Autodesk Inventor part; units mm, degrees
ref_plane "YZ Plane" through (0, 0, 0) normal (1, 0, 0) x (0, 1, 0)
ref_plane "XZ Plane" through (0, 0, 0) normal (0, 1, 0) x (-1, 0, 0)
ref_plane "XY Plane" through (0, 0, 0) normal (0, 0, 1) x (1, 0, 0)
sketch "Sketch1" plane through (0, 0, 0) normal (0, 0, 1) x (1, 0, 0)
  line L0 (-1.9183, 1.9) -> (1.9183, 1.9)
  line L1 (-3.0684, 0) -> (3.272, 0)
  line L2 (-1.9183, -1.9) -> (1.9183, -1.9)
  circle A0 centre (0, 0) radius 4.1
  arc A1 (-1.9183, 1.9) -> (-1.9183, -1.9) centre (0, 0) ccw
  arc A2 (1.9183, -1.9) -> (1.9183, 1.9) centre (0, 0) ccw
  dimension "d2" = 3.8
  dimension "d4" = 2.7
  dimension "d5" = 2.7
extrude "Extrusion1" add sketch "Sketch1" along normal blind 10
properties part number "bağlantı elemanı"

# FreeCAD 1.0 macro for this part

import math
import FreeCAD as App
import Part
import Sketcher
from FreeCAD import Vector
Q = App.Units.Quantity

doc = App.newDocument("Part")
params = doc.addObject("Spreadsheet::Sheet", "Params")
for row, (alias, value) in enumerate([
    ("sketch1_radius", "2.7 mm"),
    ("sketch1_diameter", "8.2 mm"),
    ("pad1_length", "10 mm"),
], start=1):
    params.set(f"A{row}", alias)
    params.set(f"B{row}", "=" + value)
    params.setAlias(f"B{row}", alias)

body = doc.addObject("PartDesign::Body", "Body")

sketch1 = body.newObject("Sketcher::SketchObject", "Sketch")
sketch1.AttachmentSupport = (doc.getObject("XY_Plane"), [""])
sketch1.MapMode = "FlatFace"
sketch1.addGeometry(Part.Circle(Vector(0, 0, 0), Vector(0, 0, 1), 4.1), False)
sketch1.addGeometry(Part.ArcOfCircle(Part.Circle(Vector(0, 0, 0), Vector(0, 0, 1), 2.7), math.radians(135), math.radians(225)), False)
sketch1.addGeometry(Part.LineSegment(Vector(-1.9, 1.9, 0), Vector(1.9, 1.9, 0)), False)
sketch1.addGeometry(Part.ArcOfCircle(Part.Circle(Vector(0, 0, 0), Vector(0, 0, 1), 2.7), math.radians(-45), math.radians(45)), False)
sketch1.addGeometry(Part.LineSegment(Vector(1.9, -1.9, 0), Vector(-1.9, -1.9, 0)), False)
sketch1.addConstraint(Sketcher.Constraint("Coincident", 1, 1, 2, 1))
sketch1.addConstraint(Sketcher.Constraint("Coincident", 2, 2, 3, 2))
sketch1.addConstraint(Sketcher.Constraint("Coincident", 3, 1, 4, 1))
sketch1.addConstraint(Sketcher.Constraint("Coincident", 4, 2, 1, 2))
sketch1.addConstraint(Sketcher.Constraint("Horizontal", 2))
sketch1.addConstraint(Sketcher.Constraint("Horizontal", 4))
sketch1.addConstraint(Sketcher.Constraint("Coincident", 0, 3, -1, 1))
sketch1.addConstraint(Sketcher.Constraint("Coincident", 1, 3, -1, 1))
sketch1.addConstraint(Sketcher.Constraint("Coincident", 3, 3, -1, 1))
sketch1.addConstraint(Sketcher.Constraint("Equal", 1, 3))
sketch1.addConstraint(Sketcher.Constraint("Vertical", 2, 2, 3, 1))
sketch1.addConstraint(Sketcher.Constraint("Radius", 1, Q("2.7 mm")))
sketch1.addConstraint(Sketcher.Constraint("Diameter", 0, Q("8.2 mm")))
sketch1.addConstraint(Sketcher.Constraint("DistanceY", 3, 1, 2, 2, Q("3.8 mm")))
sketch1.setExpression("Constraints[11]", "Params.sketch1_radius")
sketch1.setExpression("Constraints[12]", "Params.sketch1_diameter")
pad1 = body.newObject("PartDesign::Pad", "Pad")
pad1.Profile = sketch1
pad1.setExpression("Length", "Params.pad1_length")

doc.recompute()
